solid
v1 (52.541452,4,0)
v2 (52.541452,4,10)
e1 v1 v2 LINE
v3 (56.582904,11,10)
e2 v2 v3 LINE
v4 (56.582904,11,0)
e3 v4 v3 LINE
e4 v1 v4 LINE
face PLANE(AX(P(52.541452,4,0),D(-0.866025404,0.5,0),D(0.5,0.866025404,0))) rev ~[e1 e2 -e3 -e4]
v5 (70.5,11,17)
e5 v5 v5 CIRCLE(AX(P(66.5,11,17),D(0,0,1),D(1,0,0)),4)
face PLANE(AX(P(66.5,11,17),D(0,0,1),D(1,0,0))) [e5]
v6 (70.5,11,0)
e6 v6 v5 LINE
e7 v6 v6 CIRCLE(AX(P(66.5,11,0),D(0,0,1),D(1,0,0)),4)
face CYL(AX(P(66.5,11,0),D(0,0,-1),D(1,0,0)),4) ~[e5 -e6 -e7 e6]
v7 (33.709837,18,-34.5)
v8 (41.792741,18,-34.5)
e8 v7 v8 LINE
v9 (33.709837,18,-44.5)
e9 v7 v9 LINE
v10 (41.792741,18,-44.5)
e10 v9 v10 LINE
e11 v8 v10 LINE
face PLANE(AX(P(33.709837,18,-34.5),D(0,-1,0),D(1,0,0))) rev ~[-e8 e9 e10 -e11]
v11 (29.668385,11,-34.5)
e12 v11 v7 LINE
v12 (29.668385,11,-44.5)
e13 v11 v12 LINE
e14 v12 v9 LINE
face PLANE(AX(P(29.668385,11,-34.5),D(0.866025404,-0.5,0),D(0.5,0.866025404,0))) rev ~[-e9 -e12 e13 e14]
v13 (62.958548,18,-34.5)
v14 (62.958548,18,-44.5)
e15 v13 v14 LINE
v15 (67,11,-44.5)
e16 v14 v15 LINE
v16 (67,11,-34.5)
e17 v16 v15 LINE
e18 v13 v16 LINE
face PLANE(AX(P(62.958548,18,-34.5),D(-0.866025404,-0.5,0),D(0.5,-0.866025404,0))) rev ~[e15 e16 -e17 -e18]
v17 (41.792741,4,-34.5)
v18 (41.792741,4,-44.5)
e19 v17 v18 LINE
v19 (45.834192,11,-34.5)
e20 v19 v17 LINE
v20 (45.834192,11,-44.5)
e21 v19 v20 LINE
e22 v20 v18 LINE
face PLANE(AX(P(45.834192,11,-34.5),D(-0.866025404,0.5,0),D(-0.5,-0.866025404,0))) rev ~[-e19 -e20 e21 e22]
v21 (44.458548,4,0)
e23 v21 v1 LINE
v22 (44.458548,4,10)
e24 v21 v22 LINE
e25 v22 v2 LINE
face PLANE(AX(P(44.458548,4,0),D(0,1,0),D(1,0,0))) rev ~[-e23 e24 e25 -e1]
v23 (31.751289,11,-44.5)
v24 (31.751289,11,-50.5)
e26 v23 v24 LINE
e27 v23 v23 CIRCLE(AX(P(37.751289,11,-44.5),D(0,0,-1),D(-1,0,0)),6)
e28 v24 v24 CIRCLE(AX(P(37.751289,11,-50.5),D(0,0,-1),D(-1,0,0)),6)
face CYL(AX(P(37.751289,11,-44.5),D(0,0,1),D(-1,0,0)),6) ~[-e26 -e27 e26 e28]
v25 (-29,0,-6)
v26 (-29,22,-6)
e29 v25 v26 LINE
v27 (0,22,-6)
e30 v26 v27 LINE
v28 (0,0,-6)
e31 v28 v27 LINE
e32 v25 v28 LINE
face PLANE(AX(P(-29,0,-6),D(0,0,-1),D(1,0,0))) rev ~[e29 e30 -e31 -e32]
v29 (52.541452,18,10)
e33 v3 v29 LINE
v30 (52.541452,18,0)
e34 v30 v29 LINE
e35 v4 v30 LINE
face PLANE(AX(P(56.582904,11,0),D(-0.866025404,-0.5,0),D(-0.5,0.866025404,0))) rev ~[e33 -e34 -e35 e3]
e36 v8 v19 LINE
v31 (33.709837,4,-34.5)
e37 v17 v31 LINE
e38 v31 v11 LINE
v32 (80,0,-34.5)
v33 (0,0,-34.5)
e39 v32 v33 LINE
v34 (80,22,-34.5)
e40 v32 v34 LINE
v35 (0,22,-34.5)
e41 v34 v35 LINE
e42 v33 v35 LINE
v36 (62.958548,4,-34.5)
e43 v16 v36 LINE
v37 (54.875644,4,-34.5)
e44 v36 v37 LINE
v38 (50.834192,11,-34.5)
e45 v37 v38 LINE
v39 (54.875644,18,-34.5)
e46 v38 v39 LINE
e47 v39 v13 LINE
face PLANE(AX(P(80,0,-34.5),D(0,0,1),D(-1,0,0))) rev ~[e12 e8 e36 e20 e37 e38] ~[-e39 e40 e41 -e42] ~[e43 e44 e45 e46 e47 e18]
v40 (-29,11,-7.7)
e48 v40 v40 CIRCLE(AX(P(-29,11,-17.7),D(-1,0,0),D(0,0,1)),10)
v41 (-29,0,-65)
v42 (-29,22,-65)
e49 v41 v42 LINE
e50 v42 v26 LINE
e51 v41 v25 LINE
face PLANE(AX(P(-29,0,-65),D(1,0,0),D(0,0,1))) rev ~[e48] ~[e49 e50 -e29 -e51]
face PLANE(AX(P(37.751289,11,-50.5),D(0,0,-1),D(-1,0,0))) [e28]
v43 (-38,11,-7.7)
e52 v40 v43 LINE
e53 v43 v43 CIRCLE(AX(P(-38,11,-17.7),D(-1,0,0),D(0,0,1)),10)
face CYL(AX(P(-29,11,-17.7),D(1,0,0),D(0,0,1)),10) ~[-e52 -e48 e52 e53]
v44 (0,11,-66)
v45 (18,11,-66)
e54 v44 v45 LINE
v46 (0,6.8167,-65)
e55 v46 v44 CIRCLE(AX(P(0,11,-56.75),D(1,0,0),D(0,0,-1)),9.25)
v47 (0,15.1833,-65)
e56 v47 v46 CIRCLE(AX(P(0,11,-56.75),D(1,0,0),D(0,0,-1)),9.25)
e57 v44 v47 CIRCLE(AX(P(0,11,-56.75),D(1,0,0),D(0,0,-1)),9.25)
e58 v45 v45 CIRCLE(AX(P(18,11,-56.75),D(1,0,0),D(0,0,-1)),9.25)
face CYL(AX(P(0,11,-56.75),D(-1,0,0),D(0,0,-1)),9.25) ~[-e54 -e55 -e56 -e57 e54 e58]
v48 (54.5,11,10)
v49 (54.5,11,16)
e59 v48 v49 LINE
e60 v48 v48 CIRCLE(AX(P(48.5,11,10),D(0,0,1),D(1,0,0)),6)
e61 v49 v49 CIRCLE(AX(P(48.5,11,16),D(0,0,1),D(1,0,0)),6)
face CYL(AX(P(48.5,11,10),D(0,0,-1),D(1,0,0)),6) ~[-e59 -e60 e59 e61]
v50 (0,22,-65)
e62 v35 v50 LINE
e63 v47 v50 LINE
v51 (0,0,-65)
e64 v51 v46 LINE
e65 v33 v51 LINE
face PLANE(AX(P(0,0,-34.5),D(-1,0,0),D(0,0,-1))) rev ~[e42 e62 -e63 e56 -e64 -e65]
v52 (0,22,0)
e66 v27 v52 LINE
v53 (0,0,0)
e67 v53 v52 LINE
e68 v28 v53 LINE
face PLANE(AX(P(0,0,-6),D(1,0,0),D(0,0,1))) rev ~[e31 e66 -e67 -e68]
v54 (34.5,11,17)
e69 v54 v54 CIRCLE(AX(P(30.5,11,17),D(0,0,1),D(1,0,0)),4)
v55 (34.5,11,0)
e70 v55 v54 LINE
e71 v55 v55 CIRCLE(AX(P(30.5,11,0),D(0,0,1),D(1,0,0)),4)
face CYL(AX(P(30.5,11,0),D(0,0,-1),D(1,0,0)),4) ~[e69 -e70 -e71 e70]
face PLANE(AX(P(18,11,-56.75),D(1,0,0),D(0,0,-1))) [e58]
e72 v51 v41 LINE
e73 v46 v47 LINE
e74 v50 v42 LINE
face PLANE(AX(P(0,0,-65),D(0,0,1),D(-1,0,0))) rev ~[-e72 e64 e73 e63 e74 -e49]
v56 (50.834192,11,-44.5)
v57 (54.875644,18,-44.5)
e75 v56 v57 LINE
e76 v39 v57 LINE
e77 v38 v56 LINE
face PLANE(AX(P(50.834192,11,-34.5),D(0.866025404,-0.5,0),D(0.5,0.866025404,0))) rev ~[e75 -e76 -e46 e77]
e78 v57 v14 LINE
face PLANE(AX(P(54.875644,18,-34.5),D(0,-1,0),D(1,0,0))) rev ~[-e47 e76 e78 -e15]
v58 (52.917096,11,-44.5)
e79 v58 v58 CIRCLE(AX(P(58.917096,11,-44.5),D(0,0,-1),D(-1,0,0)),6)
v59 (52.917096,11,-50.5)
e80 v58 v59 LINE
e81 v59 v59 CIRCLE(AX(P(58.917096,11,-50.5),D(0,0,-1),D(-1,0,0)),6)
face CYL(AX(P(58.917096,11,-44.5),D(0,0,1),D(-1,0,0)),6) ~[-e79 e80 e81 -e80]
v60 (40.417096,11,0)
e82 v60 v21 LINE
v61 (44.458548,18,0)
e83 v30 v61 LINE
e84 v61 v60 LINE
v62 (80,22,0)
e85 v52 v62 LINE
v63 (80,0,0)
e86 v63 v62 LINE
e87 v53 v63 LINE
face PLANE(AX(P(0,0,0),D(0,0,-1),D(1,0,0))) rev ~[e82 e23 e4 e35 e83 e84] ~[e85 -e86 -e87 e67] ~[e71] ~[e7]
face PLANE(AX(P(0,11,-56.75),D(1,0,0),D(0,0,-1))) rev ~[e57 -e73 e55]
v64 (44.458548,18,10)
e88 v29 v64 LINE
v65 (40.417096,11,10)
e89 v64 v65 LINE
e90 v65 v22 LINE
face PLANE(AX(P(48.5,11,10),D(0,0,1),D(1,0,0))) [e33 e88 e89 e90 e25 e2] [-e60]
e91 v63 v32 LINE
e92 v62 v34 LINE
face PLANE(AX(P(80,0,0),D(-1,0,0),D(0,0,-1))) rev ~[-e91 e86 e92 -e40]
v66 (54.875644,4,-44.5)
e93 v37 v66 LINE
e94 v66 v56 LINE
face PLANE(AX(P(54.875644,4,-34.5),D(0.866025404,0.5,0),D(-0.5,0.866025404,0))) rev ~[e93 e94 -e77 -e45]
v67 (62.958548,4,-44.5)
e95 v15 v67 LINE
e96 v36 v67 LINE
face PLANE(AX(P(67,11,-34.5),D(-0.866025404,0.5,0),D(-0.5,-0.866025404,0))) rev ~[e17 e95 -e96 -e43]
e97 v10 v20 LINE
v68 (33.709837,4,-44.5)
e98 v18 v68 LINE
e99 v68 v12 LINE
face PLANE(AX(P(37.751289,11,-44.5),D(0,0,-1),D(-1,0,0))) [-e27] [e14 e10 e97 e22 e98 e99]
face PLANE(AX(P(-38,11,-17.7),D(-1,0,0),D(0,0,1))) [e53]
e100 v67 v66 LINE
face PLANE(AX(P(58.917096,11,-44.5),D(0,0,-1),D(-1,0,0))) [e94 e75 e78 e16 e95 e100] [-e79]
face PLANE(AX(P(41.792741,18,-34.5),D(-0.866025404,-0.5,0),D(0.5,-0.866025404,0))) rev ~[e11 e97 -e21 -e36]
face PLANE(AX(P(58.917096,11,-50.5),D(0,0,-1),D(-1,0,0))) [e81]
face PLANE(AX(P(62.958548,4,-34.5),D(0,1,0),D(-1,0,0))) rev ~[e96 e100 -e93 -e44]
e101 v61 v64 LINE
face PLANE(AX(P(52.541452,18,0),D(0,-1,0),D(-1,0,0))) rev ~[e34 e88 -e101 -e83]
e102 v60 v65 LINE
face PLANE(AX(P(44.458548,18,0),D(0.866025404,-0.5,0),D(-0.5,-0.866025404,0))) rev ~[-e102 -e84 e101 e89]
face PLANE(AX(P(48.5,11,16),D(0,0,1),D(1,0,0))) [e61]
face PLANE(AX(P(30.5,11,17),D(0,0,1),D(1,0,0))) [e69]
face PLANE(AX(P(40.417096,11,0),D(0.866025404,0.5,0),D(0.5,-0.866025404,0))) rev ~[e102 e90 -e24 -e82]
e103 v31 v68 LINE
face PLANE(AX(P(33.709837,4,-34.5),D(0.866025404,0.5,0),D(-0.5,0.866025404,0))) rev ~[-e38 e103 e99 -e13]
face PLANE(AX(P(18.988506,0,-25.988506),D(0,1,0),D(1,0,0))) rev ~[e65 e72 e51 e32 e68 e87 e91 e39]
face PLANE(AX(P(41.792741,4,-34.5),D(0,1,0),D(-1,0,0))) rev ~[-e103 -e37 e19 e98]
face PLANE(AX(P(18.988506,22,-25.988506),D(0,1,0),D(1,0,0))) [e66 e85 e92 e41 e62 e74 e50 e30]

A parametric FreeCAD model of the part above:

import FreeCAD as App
import Part
import Sketcher

V = App.Vector
Q = App.Units.Quantity

doc = App.newDocument("Part")
body = doc.addObject("PartDesign::Body", "Body")

sketch1 = body.newObject("Sketcher::SketchObject", "Sketch")
sketch1.AttachmentSupport = (doc.getObject("XZ_Plane"), [""])
sketch1.MapMode = "FlatFace"
sketch1.addGeometry(Part.LineSegment(V(0, 0, 0), V(80, 0, 0)), False)
sketch1.addGeometry(Part.LineSegment(V(80, 0, 0), V(80, -34, 0)), False)
sketch1.addGeometry(Part.LineSegment(V(80, -34, 0), V(0, -34, 0)), False)
sketch1.addGeometry(Part.LineSegment(V(0, -34, 0), V(0, -65, 0)), False)
sketch1.addGeometry(Part.LineSegment(V(0, -65, 0), V(-29, -65, 0)), False)
sketch1.addGeometry(Part.LineSegment(V(-29, -65, 0), V(-29, -6, 0)), False)
sketch1.addGeometry(Part.LineSegment(V(-29, -6, 0), V(0, -6, 0)), False)
sketch1.addGeometry(Part.LineSegment(V(0, -6, 0), V(0, 0, 0)), False)
sketch1.addConstraint(Sketcher.Constraint("Coincident", 0, 2, 1, 1))
sketch1.addConstraint(Sketcher.Constraint("Coincident", 1, 2, 2, 1))
sketch1.addConstraint(Sketcher.Constraint("Coincident", 2, 2, 3, 1))
sketch1.addConstraint(Sketcher.Constraint("Coincident", 3, 2, 4, 1))
sketch1.addConstraint(Sketcher.Constraint("Coincident", 4, 2, 5, 1))
sketch1.addConstraint(Sketcher.Constraint("Coincident", 5, 2, 6, 1))
sketch1.addConstraint(Sketcher.Constraint("Coincident", 6, 2, 7, 1))
sketch1.addConstraint(Sketcher.Constraint("Coincident", 7, 2, 0, 1))
sketch1.addConstraint(Sketcher.Constraint("Horizontal", 0))
sketch1.addConstraint(Sketcher.Constraint("Vertical", 1))
sketch1.addConstraint(Sketcher.Constraint("Horizontal", 2))
sketch1.addConstraint(Sketcher.Constraint("Vertical", 3))
sketch1.addConstraint(Sketcher.Constraint("Horizontal", 4))
sketch1.addConstraint(Sketcher.Constraint("Vertical", 5))
sketch1.addConstraint(Sketcher.Constraint("Horizontal", 6))
sketch1.addConstraint(Sketcher.Constraint("Vertical", 7))
sketch1.addConstraint(Sketcher.Constraint("Coincident", 7, 2, -1, 1))
sketch1.addConstraint(Sketcher.Constraint("PointOnObject", 2, 2, -2))
sketch1.addConstraint(Sketcher.Constraint("DistanceX", 0, 1, 0, 2, 80.0))
sketch1.addConstraint(Sketcher.Constraint("DistanceX", 4, 2, 4, 1, 29.0))
sketch1.addConstraint(Sketcher.Constraint("DistanceY", 5, 1, 5, 2, 59.0))
sketch1.addConstraint(Sketcher.Constraint("DistanceY", 7, 1, 7, 2, 6.0))
sketch1.addConstraint(Sketcher.Constraint("DistanceY", 1, 2, 1, 1, 34.5))
pad1 = body.newObject("PartDesign::Pad", "Pad")
pad1.Profile = sketch1
pad1.Length = 22
pad1.Reversed = True

sketch2 = body.newObject("Sketcher::SketchObject", "Sketch001")
sketch2.AttachmentSupport = (doc.getObject("XY_Plane"), [""])
sketch2.MapMode = "FlatFace"
sketch2.addGeometry(Part.Circle(V(30.5, 11, 0), V(0, 0, 1), 4), False)
sketch2.addGeometry(Part.Circle(V(66.5, 11, 0), V(0, 0, 1), 4), False)
sketch2.addConstraint(Sketcher.Constraint("Equal", 0, 1))
sketch2.addConstraint(Sketcher.Constraint("Horizontal", 0, 3, 1, 3))
sketch2.addConstraint(Sketcher.Constraint("Diameter", 0, 8.0))
sketch2.addConstraint(Sketcher.Constraint("DistanceY", -1, 1, 0, 3, 11.0))
sketch2.addConstraint(Sketcher.Constraint("DistanceX", 0, 3, 1, 3, 36.0))
sketch2.addConstraint(Sketcher.Constraint("DistanceX", -1, 1, 0, 3, 30.5))
pad2 = body.newObject("PartDesign::Pad", "Pad001")
pad2.Profile = sketch2
pad2.Length = 17

sketch3 = body.newObject("Sketcher::SketchObject", "Sketch002")
sketch3.AttachmentSupport = (doc.getObject("XY_Plane"), [""])
sketch3.MapMode = "FlatFace"
sketch3.AttachmentOffset = App.Placement(V(0, 0, -34.5), App.Rotation())
sketch3.addGeometry(Part.LineSegment(V(51, 11, 0), V(55, 18, 0)), False)
sketch3.addGeometry(Part.LineSegment(V(55, 18, 0), V(63, 18, 0)), False)
sketch3.addGeometry(Part.LineSegment(V(63, 18, 0), V(67, 11, 0)), False)
sketch3.addGeometry(Part.LineSegment(V(67, 11, 0), V(63, 4, 0)), False)
sketch3.addGeometry(Part.LineSegment(V(63, 4, 0), V(55, 4, 0)), False)
sketch3.addGeometry(Part.LineSegment(V(55, 4, 0), V(51, 11, 0)), False)
sketch3.addGeometry(Part.LineSegment(V(30, 11, 0), V(34, 18, 0)), False)
sketch3.addGeometry(Part.LineSegment(V(34, 18, 0), V(42, 18, 0)), False)
sketch3.addGeometry(Part.LineSegment(V(42, 18, 0), V(46, 11, 0)), False)
sketch3.addGeometry(Part.LineSegment(V(46, 11, 0), V(42, 4, 0)), False)
sketch3.addGeometry(Part.LineSegment(V(42, 4, 0), V(34, 4, 0)), False)
sketch3.addGeometry(Part.LineSegment(V(34, 4, 0), V(30, 11, 0)), False)
sketch3.addConstraint(Sketcher.Constraint("Coincident", 0, 2, 1, 1))
sketch3.addConstraint(Sketcher.Constraint("Coincident", 1, 2, 2, 1))
sketch3.addConstraint(Sketcher.Constraint("Coincident", 2, 2, 3, 1))
sketch3.addConstraint(Sketcher.Constraint("Coincident", 3, 2, 4, 1))
sketch3.addConstraint(Sketcher.Constraint("Coincident", 4, 2, 5, 1))
sketch3.addConstraint(Sketcher.Constraint("Coincident", 5, 2, 0, 1))
sketch3.addConstraint(Sketcher.Constraint("Coincident", 6, 2, 7, 1))
sketch3.addConstraint(Sketcher.Constraint("Coincident", 7, 2, 8, 1))
sketch3.addConstraint(Sketcher.Constraint("Coincident", 8, 2, 9, 1))
sketch3.addConstraint(Sketcher.Constraint("Coincident", 9, 2, 10, 1))
sketch3.addConstraint(Sketcher.Constraint("Coincident", 10, 2, 11, 1))
sketch3.addConstraint(Sketcher.Constraint("Coincident", 11, 2, 6, 1))
sketch3.addConstraint(Sketcher.Constraint("Horizontal", 1))
sketch3.addConstraint(Sketcher.Constraint("Horizontal", 4))
sketch3.addConstraint(Sketcher.Constraint("Horizontal", 7))
sketch3.addConstraint(Sketcher.Constraint("Horizontal", 10))
sketch3.addConstraint(Sketcher.Constraint("Parallel", 0, 3))
sketch3.addConstraint(Sketcher.Constraint("Parallel", 2, 5))
sketch3.addConstraint(Sketcher.Constraint("Parallel", 3, 6))
sketch3.addConstraint(Sketcher.Constraint("Parallel", 5, 8))
sketch3.addConstraint(Sketcher.Constraint("Parallel", 6, 9))
sketch3.addConstraint(Sketcher.Constraint("Parallel", 8, 11))
sketch3.addConstraint(Sketcher.Constraint("Horizontal", 2, 2, 5, 2))
sketch3.addConstraint(Sketcher.Constraint("Horizontal", 1, 2, 6, 2))
sketch3.addConstraint(Sketcher.Constraint("Horizontal", 5, 2, 8, 2))
sketch3.addConstraint(Sketcher.Constraint("Horizontal", 4, 2, 9, 2))
sketch3.addConstraint(Sketcher.Constraint("Horizontal", 8, 2, 11, 2))
sketch3.addConstraint(Sketcher.Constraint("Vertical", 1, 2, 3, 2))
sketch3.addConstraint(Sketcher.Constraint("Vertical", 0, 2, 4, 2))
sketch3.addConstraint(Sketcher.Constraint("Equal", 4, 7))
sketch3.addConstraint(Sketcher.Constraint("Angle", 0, Q("60 deg")))
sketch3.addConstraint(Sketcher.Constraint("DistanceY", -1, 1, 0, 2, 18.0))
sketch3.addConstraint(Sketcher.Constraint("DistanceX", -1, 1, 2, 2, 67.0))
sketch3.addConstraint(Sketcher.Constraint("DistanceY", -1, 1, 2, 2, 11.0))
sketch3.addConstraint(Sketcher.Constraint("DistanceX", 8, 2, 5, 2, 5.0))
sketch3.addConstraint(Sketcher.Constraint("DistanceX", 1, 1, 1, 2, 8.082904))
pad3 = body.newObject("PartDesign::Pad", "Pad002")
pad3.Profile = sketch3
pad3.Length = 10
pad3.Reversed = True

sketch4 = body.newObject("Sketcher::SketchObject", "Sketch003")
sketch4.AttachmentSupport = (doc.getObject("YZ_Plane"), [""])
sketch4.MapMode = "FlatFace"
sketch4.addGeometry(Part.Circle(V(11, -57, 0), V(0, 0, 1), 9), False)
sketch4.addConstraint(Sketcher.Constraint("Diameter", 0, 18.5))
sketch4.addConstraint(Sketcher.Constraint("DistanceX", -1, 1, 0, 3, 11.0))
sketch4.addConstraint(Sketcher.Constraint("DistanceY", 0, 3, -1, 1, 56.75))
pad4 = body.newObject("PartDesign::Pad", "Pad003")
pad4.Profile = sketch4
pad4.Length = 18

sketch5 = body.newObject("Sketcher::SketchObject", "Sketch004")
sketch5.AttachmentSupport = (doc.getObject("YZ_Plane"), [""])
sketch5.MapMode = "FlatFace"
sketch5.AttachmentOffset = App.Placement(V(0, 0, -29), App.Rotation())
sketch5.addGeometry(Part.Circle(V(11, -18, 0), V(0, 0, 1), 10), False)
sketch5.addConstraint(Sketcher.Constraint("Diameter", 0, 20.0))
sketch5.addConstraint(Sketcher.Constraint("DistanceX", -1, 1, 0, 3, 11.0))
sketch5.addConstraint(Sketcher.Constraint("DistanceY", 0, 3, -1, 1, 17.7))
pad5 = body.newObject("PartDesign::Pad", "Pad004")
pad5.Profile = sketch5
pad5.Length = 9
pad5.Reversed = True

sketch6 = body.newObject("Sketcher::SketchObject", "Sketch005")
sketch6.AttachmentSupport = (doc.getObject("XY_Plane"), [""])
sketch6.MapMode = "FlatFace"
sketch6.addGeometry(Part.LineSegment(V(57, 11, 0), V(53, 18, 0)), False)
sketch6.addGeometry(Part.LineSegment(V(53, 18, 0), V(44, 18, 0)), False)
sketch6.addGeometry(Part.LineSegment(V(44, 18, 0), V(40, 11, 0)), False)
sketch6.addGeometry(Part.LineSegment(V(40, 11, 0), V(44, 4, 0)), False)
sketch6.addGeometry(Part.LineSegment(V(44, 4, 0), V(53, 4, 0)), False)
sketch6.addGeometry(Part.LineSegment(V(53, 4, 0), V(57, 11, 0)), False)
sketch6.addConstraint(Sketcher.Constraint("Coincident", 0, 2, 1, 1))
sketch6.addConstraint(Sketcher.Constraint("Coincident", 1, 2, 2, 1))
sketch6.addConstraint(Sketcher.Constraint("Coincident", 2, 2, 3, 1))
sketch6.addConstraint(Sketcher.Constraint("Coincident", 3, 2, 4, 1))
sketch6.addConstraint(Sketcher.Constraint("Coincident", 4, 2, 5, 1))
sketch6.addConstraint(Sketcher.Constraint("Coincident", 5, 2, 0, 1))
sketch6.addConstraint(Sketcher.Constraint("Horizontal", 1))
sketch6.addConstraint(Sketcher.Constraint("Horizontal", 4))
sketch6.addConstraint(Sketcher.Constraint("Parallel", 0, 3))
sketch6.addConstraint(Sketcher.Constraint("Parallel", 2, 5))
sketch6.addConstraint(Sketcher.Constraint("Horizontal", 2, 2, 5, 2))
sketch6.addConstraint(Sketcher.Constraint("Vertical", 1, 2, 3, 2))
sketch6.addConstraint(Sketcher.Constraint("Vertical", 0, 2, 4, 2))
sketch6.addConstraint(Sketcher.Constraint("Angle", 0, Q("120 deg")))
sketch6.addConstraint(Sketcher.Constraint("DistanceY", -1, 1, 0, 2, 18.0))
sketch6.addConstraint(Sketcher.Constraint("DistanceY", -1, 1, 2, 2, 11.0))
sketch6.addConstraint(Sketcher.Constraint("DistanceX", 1, 2, 1, 1, 8.082904))
sketch6.addConstraint(Sketcher.Constraint("DistanceX", -1, 1, 0, 2, 52.541452))
pad6 = body.newObject("PartDesign::Pad", "Pad005")
pad6.Profile = sketch6
pad6.Length = 10

sketch7 = body.newObject("Sketcher::SketchObject", "Sketch006")
sketch7.AttachmentSupport = (doc.getObject("XY_Plane"), [""])
sketch7.MapMode = "FlatFace"
sketch7.AttachmentOffset = App.Placement(V(0, 0, 10), App.Rotation())
sketch7.addGeometry(Part.Circle(V(48, 11, 0), V(0, 0, 1), 6), False)
sketch7.addConstraint(Sketcher.Constraint("Diameter", 0, 12.0))
sketch7.addConstraint(Sketcher.Constraint("DistanceY", -1, 1, 0, 3, 11.0))
sketch7.addConstraint(Sketcher.Constraint("DistanceX", -1, 1, 0, 3, 48.5))
pad7 = body.newObject("PartDesign::Pad", "Pad006")
pad7.Profile = sketch7
pad7.Length = 6

sketch8 = body.newObject("Sketcher::SketchObject", "Sketch007")
sketch8.AttachmentSupport = (doc.getObject("XY_Plane"), [""])
sketch8.MapMode = "FlatFace"
sketch8.AttachmentOffset = App.Placement(V(0, 0, -44.5), App.Rotation())
sketch8.addGeometry(Part.Circle(V(59, 11, 0), V(0, 0, 1), 6), False)
sketch8.addGeometry(Part.Circle(V(38, 11, 0), V(0, 0, 1), 6), False)
sketch8.addConstraint(Sketcher.Constraint("Equal", 0, 1))
sketch8.addConstraint(Sketcher.Constraint("Horizontal", 0, 3, 1, 3))
sketch8.addConstraint(Sketcher.Constraint("Diameter", 0, 12.0))
sketch8.addConstraint(Sketcher.Constraint("DistanceY", -1, 1, 0, 3, 11.0))
sketch8.addConstraint(Sketcher.Constraint("DistanceX", -1, 1, 1, 3, 37.751289))
sketch8.addConstraint(Sketcher.Constraint("DistanceX", -1, 1, 0, 3, 58.917096))
pad8 = body.newObject("PartDesign::Pad", "Pad007")
pad8.Profile = sketch8
pad8.Length = 6
pad8.Reversed = True

doc.recompute()
